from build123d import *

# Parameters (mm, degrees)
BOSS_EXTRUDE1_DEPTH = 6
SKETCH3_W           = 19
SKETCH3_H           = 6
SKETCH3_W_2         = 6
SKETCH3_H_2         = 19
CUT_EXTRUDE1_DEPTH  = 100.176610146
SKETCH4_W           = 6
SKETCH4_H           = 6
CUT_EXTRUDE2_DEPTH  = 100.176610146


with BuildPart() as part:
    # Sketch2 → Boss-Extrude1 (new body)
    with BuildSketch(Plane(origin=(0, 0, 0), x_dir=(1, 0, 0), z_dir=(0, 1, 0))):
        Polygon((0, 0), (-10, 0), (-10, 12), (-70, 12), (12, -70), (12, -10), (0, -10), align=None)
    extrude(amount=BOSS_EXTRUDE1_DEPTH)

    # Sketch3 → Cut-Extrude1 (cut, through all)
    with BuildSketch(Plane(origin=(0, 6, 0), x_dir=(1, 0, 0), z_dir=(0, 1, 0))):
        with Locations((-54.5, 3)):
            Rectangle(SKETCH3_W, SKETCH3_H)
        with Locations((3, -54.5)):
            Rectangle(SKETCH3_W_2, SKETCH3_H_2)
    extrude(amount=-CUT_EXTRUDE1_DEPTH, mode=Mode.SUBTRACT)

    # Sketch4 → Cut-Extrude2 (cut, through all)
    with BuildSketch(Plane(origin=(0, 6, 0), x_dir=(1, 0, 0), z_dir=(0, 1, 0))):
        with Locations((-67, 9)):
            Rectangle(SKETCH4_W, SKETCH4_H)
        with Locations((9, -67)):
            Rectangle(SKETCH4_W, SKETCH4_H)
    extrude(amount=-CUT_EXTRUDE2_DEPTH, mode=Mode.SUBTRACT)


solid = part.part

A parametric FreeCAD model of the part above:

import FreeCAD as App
import Part
import Sketcher
Q = App.Units.Quantity

doc = App.newDocument("Part")
body = doc.addObject("PartDesign::Body", "Body")

# Sketch on XZ plane
sketch1 = body.newObject("Sketcher::SketchObject", "Sketch")
sketch1.AttachmentSupport = (doc.getObject("XZ_Plane"), [""])
sketch1.MapMode = "FlatFace"
sketch1.addGeometry([
    Part.LineSegment(App.Vector(0, 0, 0), App.Vector(-10, 0, 0)),  # 0
    Part.LineSegment(App.Vector(-10, 0, 0), App.Vector(-10, -12, 0)),  # 1
    Part.LineSegment(App.Vector(-10, -12, 0), App.Vector(-70, -12, 0)),  # 2
    Part.LineSegment(App.Vector(-70, -12, 0), App.Vector(12, 70, 0)),  # 3
    Part.LineSegment(App.Vector(12, 70, 0), App.Vector(12, 10, 0)),  # 4
    Part.LineSegment(App.Vector(12, 10, 0), App.Vector(0, 10, 0)),  # 5
    Part.LineSegment(App.Vector(0, 10, 0), App.Vector(0, 0, 0)),  # 6
], False)
sketch1.addConstraint([
    Sketcher.Constraint("Coincident", 0, 2, 1, 1),
    Sketcher.Constraint("Coincident", 1, 2, 2, 1),
    Sketcher.Constraint("Coincident", 2, 2, 3, 1),
    Sketcher.Constraint("Coincident", 3, 2, 4, 1),
    Sketcher.Constraint("Coincident", 4, 2, 5, 1),
    Sketcher.Constraint("Coincident", 5, 2, 6, 1),
    Sketcher.Constraint("Coincident", 6, 2, 0, 1),
    Sketcher.Constraint("Horizontal", 0),
    Sketcher.Constraint("Vertical", 1),
    Sketcher.Constraint("Horizontal", 2),
    Sketcher.Constraint("Vertical", 4),
    Sketcher.Constraint("Horizontal", 5),
    Sketcher.Constraint("Vertical", 6),
    Sketcher.Constraint("Coincident", 6, 2, -1, 1),
    Sketcher.Constraint("Equal", 5, 1),
    Sketcher.Constraint("Equal", 2, 4),
    Sketcher.Constraint("Equal", 0, 6),
    Sketcher.Constraint("DistanceX", 0, 2, 0, 1, Q("10 mm")),
    Sketcher.Constraint("DistanceX", 2, 2, 2, 1, Q("60 mm")),
    Sketcher.Constraint("DistanceX", 5, 2, 5, 1, Q("12 mm")),
])
pad1 = body.newObject("PartDesign::Pad", "Pad")
pad1.Profile = sketch1
pad1.Length = 6
pad1.Reversed = True

# Sketch on XZ plane
sketch2 = body.newObject("Sketcher::SketchObject", "Sketch001")
sketch2.AttachmentSupport = (doc.getObject("XZ_Plane"), [""])
sketch2.MapMode = "FlatFace"
sketch2.AttachmentOffset = App.Placement(App.Vector(0, 0, -6), App.Rotation())
sketch2.addGeometry([
    Part.LineSegment(App.Vector(-64, -6, 0), App.Vector(-64, 0, 0)),  # 0
    Part.LineSegment(App.Vector(-64, 0, 0), App.Vector(-45, 0, 0)),  # 1
    Part.LineSegment(App.Vector(-45, 0, 0), App.Vector(-45, -6, 0)),  # 2
    Part.LineSegment(App.Vector(-45, -6, 0), App.Vector(-64, -6, 0)),  # 3
    Part.LineSegment(App.Vector(0, 45, 0), App.Vector(0, 64, 0)),  # 4
    Part.LineSegment(App.Vector(0, 64, 0), App.Vector(6, 64, 0)),  # 5
    Part.LineSegment(App.Vector(6, 64, 0), App.Vector(6, 45, 0)),  # 6
    Part.LineSegment(App.Vector(6, 45, 0), App.Vector(0, 45, 0)),  # 7
], False)
sketch2.addConstraint([
    Sketcher.Constraint("Coincident", 0, 2, 1, 1),
    Sketcher.Constraint("Coincident", 1, 2, 2, 1),
    Sketcher.Constraint("Coincident", 2, 2, 3, 1),
    Sketcher.Constraint("Coincident", 3, 2, 0, 1),
    Sketcher.Constraint("Coincident", 4, 2, 5, 1),
    Sketcher.Constraint("Coincident", 5, 2, 6, 1),
    Sketcher.Constraint("Coincident", 6, 2, 7, 1),
    Sketcher.Constraint("Coincident", 7, 2, 4, 1),
    Sketcher.Constraint("Vertical", 0),
    Sketcher.Constraint("Horizontal", 1),
    Sketcher.Constraint("Vertical", 2),
    Sketcher.Constraint("Horizontal", 3),
    Sketcher.Constraint("Vertical", 4),
    Sketcher.Constraint("Horizontal", 5),
    Sketcher.Constraint("Vertical", 6),
    Sketcher.Constraint("Horizontal", 7),
    Sketcher.Constraint("PointOnObject", 0, 2, -1),
    Sketcher.Constraint("PointOnObject", 4, 2, -2),
    Sketcher.Constraint("Equal", 7, 0),
    Sketcher.Constraint("Equal", 3, 4),
    Sketcher.Constraint("DistanceX", 1, 1, 1, 2, Q("19 mm")),
    Sketcher.Constraint("DistanceX", 5, 1, 5, 2, Q("6 mm")),
    Sketcher.Constraint("DistanceX", 0, 2, -1, 1, Q("64 mm")),
    Sketcher.Constraint("DistanceY", -1, 1, 4, 2, Q("64 mm")),
])
pocket1 = body.newObject("PartDesign::Pocket", "Pocket")
pocket1.Profile = sketch2
pocket1.Type = "ThroughAll"
pocket1.Reversed = True

# Sketch on XZ plane
sketch3 = body.newObject("Sketcher::SketchObject", "Sketch002")
sketch3.AttachmentSupport = (doc.getObject("XZ_Plane"), [""])
sketch3.MapMode = "FlatFace"
sketch3.AttachmentOffset = App.Placement(App.Vector(0, 0, -6), App.Rotation())
sketch3.addGeometry([
    Part.LineSegment(App.Vector(-70, -12, 0), App.Vector(-70, -6, 0)),  # 0
    Part.LineSegment(App.Vector(-70, -6, 0), App.Vector(-64, -6, 0)),  # 1
    Part.LineSegment(App.Vector(-64, -6, 0), App.Vector(-64, -12, 0)),  # 2
    Part.LineSegment(App.Vector(-64, -12, 0), App.Vector(-70, -12, 0)),  # 3
    Part.LineSegment(App.Vector(6, 64, 0), App.Vector(6, 70, 0)),  # 4
    Part.LineSegment(App.Vector(6, 70, 0), App.Vector(12, 70, 0)),  # 5
    Part.LineSegment(App.Vector(12, 70, 0), App.Vector(12, 64, 0)),  # 6
    Part.LineSegment(App.Vector(12, 64, 0), App.Vector(6, 64, 0)),  # 7
], False)
sketch3.addConstraint([
    Sketcher.Constraint("Coincident", 0, 2, 1, 1),
    Sketcher.Constraint("Coincident", 1, 2, 2, 1),
    Sketcher.Constraint("Coincident", 2, 2, 3, 1),
    Sketcher.Constraint("Coincident", 3, 2, 0, 1),
    Sketcher.Constraint("Coincident", 4, 2, 5, 1),
    Sketcher.Constraint("Coincident", 5, 2, 6, 1),
    Sketcher.Constraint("Coincident", 6, 2, 7, 1),
    Sketcher.Constraint("Coincident", 7, 2, 4, 1),
    Sketcher.Constraint("Vertical", 0),
    Sketcher.Constraint("Horizontal", 1),
    Sketcher.Constraint("Vertical", 2),
    Sketcher.Constraint("Horizontal", 3),
    Sketcher.Constraint("Vertical", 4),
    Sketcher.Constraint("Horizontal", 5),
    Sketcher.Constraint("Vertical", 6),
    Sketcher.Constraint("Horizontal", 7),
    Sketcher.Constraint("Equal", 3, 5),
    Sketcher.Constraint("Equal", 7, 0),
    Sketcher.Constraint("Equal", 2, 4),
    Sketcher.Constraint("DistanceX", 1, 1, 1, 2, Q("6 mm")),
    Sketcher.Constraint("DistanceX", 0, 2, -1, 1, Q("70 mm")),
    Sketcher.Constraint("DistanceY", 0, 2, -1, 1, Q("6 mm")),
    Sketcher.Constraint("DistanceX", -1, 1, 4, 2, Q("6 mm")),
    Sketcher.Constraint("DistanceY", -1, 1, 4, 2, Q("70 mm")),
])
pocket2 = body.newObject("PartDesign::Pocket", "Pocket001")
pocket2.Profile = sketch3
pocket2.Type = "ThroughAll"
pocket2.Reversed = True

doc.recompute()
